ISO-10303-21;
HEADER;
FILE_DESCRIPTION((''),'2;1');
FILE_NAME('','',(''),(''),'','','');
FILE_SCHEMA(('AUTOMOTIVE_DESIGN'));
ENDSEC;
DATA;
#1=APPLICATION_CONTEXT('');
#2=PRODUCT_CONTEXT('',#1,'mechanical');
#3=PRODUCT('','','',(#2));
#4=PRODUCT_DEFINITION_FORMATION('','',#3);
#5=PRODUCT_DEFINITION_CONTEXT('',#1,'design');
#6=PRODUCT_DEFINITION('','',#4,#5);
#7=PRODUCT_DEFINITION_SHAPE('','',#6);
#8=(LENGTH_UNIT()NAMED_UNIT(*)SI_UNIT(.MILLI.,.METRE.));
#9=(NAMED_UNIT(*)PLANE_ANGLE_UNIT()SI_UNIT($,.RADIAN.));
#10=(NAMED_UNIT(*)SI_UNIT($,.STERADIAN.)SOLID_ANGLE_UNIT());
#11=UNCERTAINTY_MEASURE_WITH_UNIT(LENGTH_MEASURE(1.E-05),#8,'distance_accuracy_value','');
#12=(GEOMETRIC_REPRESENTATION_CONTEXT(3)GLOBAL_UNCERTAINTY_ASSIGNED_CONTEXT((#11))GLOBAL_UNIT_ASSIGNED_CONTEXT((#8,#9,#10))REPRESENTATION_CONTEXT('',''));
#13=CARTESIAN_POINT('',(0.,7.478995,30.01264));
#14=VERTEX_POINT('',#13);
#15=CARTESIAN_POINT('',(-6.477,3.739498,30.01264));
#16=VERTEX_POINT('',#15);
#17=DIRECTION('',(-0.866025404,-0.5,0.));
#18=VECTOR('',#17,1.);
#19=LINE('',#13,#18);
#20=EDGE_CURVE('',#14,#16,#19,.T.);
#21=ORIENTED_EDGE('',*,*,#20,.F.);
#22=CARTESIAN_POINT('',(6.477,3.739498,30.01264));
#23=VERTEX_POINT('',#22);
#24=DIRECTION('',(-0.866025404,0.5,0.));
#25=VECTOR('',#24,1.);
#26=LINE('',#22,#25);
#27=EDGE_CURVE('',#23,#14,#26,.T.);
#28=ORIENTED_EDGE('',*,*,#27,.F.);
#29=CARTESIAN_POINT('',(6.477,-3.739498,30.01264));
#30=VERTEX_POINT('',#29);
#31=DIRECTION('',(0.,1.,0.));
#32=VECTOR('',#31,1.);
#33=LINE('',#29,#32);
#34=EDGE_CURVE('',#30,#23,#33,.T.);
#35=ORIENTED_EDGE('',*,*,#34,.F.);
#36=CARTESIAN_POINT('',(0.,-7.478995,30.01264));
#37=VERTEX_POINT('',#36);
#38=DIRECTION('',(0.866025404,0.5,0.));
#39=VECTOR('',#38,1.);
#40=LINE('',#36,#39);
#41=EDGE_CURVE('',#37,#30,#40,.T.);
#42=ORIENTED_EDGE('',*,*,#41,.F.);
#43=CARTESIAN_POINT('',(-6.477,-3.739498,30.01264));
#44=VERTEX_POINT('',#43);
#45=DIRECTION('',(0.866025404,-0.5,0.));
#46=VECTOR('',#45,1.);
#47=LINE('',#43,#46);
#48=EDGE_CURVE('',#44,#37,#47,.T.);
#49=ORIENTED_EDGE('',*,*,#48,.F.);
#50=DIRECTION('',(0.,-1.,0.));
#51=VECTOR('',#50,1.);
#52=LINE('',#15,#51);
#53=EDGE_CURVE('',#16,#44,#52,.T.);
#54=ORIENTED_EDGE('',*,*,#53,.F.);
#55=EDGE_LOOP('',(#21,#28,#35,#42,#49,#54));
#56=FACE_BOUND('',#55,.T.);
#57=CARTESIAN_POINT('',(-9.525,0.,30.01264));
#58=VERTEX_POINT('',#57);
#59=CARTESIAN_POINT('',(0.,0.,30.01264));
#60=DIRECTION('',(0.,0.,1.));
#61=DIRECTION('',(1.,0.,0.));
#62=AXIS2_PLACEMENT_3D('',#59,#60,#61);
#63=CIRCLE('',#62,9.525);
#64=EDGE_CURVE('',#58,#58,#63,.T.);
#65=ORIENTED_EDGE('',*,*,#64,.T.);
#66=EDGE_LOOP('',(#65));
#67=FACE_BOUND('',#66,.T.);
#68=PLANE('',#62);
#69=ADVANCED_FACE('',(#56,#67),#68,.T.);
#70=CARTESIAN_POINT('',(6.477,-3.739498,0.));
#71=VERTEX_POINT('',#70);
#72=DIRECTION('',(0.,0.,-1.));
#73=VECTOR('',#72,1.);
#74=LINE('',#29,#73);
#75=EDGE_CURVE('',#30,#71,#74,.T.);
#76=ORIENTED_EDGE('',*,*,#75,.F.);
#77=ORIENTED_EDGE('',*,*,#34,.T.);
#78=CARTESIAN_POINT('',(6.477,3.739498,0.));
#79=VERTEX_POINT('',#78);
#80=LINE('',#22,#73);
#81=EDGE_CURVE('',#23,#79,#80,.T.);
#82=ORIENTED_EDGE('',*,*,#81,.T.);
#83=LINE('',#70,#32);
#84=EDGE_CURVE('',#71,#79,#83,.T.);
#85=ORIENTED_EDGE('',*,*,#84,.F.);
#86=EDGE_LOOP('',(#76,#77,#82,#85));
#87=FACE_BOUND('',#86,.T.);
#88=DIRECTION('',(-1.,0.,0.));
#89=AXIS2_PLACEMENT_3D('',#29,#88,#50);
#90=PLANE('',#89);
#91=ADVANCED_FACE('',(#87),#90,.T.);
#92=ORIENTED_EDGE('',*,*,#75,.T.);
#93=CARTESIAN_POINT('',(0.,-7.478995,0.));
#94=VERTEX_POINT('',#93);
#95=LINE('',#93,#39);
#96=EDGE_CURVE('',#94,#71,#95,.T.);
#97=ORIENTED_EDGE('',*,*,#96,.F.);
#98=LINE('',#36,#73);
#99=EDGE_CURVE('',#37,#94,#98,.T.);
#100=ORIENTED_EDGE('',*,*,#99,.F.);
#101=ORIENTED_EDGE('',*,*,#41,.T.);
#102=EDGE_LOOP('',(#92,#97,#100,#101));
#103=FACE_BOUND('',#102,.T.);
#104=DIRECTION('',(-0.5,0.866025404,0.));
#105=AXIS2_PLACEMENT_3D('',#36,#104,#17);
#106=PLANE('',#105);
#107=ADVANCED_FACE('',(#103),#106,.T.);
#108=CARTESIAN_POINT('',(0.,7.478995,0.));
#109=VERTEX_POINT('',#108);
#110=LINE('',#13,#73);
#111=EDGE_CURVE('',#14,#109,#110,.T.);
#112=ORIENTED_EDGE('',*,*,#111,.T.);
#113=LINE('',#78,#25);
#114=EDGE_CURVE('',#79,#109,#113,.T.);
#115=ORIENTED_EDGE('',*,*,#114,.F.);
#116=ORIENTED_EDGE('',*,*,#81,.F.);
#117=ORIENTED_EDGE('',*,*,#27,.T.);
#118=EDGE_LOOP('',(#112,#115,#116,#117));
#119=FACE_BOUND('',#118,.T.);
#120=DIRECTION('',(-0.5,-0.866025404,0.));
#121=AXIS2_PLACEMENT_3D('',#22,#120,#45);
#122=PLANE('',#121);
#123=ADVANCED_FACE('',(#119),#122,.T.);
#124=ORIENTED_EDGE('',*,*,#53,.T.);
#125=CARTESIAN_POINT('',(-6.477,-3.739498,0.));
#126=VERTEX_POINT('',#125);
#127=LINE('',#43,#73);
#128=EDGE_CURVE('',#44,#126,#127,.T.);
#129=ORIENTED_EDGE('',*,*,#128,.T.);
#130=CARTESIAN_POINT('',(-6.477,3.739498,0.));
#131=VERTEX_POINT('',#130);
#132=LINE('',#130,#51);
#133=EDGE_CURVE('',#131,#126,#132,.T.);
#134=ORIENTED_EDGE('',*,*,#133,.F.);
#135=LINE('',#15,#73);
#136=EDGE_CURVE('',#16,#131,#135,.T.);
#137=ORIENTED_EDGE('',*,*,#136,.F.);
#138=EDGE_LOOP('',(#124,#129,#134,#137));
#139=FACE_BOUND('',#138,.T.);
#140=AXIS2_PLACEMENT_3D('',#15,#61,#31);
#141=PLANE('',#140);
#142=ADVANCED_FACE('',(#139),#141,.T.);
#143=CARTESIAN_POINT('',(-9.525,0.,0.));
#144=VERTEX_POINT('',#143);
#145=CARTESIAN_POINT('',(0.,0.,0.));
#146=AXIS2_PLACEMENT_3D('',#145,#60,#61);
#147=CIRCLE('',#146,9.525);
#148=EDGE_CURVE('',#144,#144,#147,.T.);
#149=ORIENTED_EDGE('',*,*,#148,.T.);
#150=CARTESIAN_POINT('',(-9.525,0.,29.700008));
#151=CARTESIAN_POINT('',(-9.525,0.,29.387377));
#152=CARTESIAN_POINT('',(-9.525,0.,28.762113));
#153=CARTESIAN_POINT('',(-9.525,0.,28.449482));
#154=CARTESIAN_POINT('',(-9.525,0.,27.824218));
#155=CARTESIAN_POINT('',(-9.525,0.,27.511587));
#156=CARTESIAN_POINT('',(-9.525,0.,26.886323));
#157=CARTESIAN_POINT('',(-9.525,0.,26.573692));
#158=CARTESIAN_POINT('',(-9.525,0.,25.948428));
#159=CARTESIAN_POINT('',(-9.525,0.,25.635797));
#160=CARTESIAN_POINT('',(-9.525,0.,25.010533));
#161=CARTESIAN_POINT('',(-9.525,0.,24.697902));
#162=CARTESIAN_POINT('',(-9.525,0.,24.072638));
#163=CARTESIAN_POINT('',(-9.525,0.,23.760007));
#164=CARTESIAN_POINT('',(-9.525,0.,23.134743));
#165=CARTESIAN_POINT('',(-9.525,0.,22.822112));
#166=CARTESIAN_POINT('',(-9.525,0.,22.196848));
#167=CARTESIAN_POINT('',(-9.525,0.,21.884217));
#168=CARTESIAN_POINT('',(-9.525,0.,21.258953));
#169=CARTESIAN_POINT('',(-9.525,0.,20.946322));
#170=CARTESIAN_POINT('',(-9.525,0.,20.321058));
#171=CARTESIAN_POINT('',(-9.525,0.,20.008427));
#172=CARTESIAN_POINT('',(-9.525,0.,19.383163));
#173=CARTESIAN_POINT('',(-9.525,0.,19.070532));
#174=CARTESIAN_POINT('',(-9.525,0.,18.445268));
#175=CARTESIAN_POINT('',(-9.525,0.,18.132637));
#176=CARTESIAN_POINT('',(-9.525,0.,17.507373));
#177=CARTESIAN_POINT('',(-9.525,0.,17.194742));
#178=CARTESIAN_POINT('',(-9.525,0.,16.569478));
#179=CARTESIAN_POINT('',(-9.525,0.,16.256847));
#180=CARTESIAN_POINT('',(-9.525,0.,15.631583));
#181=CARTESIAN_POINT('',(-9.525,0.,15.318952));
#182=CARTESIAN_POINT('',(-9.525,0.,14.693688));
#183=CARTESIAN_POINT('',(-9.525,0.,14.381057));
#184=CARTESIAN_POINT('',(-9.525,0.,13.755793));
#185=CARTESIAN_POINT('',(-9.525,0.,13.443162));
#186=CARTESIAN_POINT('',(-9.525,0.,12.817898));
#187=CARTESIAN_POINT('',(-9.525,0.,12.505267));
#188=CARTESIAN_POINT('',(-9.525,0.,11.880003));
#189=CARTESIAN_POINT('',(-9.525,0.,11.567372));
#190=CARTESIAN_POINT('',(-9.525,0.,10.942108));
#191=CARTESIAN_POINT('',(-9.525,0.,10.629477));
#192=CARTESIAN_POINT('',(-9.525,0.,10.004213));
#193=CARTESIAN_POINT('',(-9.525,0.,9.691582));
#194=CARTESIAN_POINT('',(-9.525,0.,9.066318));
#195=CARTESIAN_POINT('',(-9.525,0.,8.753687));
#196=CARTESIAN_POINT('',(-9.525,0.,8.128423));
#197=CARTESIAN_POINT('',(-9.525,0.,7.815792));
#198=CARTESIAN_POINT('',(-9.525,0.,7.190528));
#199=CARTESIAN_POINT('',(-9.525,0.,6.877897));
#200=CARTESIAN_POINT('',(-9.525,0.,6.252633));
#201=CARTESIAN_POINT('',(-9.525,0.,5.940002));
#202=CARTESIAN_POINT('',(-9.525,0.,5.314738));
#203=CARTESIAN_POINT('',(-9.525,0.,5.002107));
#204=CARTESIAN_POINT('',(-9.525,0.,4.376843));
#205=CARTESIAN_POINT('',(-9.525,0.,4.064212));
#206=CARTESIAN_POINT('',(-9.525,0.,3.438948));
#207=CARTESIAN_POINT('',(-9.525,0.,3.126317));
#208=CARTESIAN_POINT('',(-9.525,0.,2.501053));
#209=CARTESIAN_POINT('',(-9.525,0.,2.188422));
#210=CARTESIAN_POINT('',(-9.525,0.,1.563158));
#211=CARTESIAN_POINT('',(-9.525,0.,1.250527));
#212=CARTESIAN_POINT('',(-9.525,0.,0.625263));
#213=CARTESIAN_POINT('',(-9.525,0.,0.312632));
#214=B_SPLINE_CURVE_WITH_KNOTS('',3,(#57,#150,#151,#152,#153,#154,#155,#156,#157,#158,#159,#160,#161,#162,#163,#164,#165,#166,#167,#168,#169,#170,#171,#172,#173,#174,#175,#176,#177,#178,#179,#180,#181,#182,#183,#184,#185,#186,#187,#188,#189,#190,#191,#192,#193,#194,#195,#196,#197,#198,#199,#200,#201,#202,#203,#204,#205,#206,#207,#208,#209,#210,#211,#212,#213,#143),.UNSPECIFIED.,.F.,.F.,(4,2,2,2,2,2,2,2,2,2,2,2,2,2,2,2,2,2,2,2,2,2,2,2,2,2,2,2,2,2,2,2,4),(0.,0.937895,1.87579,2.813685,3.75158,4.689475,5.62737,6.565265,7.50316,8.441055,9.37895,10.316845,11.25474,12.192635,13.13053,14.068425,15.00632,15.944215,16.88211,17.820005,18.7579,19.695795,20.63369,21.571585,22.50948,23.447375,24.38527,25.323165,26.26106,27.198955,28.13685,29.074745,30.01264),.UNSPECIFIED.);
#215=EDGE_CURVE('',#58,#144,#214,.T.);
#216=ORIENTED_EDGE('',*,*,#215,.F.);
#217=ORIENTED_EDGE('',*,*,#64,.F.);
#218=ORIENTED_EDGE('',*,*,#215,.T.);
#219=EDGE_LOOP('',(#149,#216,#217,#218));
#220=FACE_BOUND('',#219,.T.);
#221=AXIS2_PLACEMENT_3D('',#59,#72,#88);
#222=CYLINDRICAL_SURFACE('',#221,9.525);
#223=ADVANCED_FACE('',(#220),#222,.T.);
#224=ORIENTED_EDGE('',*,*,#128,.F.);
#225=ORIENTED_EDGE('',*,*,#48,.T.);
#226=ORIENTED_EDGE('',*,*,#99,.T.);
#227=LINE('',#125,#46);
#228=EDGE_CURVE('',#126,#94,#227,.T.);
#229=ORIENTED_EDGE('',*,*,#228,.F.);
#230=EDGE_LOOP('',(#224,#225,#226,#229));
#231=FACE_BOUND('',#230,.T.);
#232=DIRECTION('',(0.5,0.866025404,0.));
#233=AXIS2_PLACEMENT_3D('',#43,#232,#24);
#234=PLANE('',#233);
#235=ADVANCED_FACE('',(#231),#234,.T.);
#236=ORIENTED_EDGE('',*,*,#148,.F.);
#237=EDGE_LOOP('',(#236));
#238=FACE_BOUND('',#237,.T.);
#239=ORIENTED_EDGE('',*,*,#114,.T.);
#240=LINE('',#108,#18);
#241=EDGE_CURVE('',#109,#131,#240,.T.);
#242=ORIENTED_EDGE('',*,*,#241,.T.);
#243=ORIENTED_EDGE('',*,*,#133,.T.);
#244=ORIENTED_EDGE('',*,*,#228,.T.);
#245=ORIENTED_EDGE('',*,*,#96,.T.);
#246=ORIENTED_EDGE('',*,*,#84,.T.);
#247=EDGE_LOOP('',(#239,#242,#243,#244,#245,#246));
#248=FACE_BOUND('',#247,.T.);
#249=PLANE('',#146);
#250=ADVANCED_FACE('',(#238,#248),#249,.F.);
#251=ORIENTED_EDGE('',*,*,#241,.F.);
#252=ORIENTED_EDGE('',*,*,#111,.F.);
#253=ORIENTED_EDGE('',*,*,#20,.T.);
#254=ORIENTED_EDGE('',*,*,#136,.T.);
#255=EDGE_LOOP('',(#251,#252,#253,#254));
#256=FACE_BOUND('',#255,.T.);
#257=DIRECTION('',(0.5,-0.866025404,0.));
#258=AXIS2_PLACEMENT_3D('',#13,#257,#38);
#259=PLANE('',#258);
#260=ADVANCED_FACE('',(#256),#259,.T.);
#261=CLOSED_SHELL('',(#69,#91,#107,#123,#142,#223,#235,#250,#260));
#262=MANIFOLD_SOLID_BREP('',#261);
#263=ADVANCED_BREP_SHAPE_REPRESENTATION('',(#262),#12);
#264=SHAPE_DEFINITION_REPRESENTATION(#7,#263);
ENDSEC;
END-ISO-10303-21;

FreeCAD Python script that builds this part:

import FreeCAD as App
import Part
import Sketcher
Q = App.Units.Quantity


def add_polygon(sketch, points):
    """Adds a closed chain of lines whose ends are joined by coincident constraints."""
    first, n = sketch.GeometryCount, len(points)
    for a, b in zip(points, points[1:] + points[:1]):
        sketch.addGeometry(Part.LineSegment(App.Vector(*a, 0), App.Vector(*b, 0)), False)
    for i in range(n):
        sketch.addConstraint(Sketcher.Constraint("Coincident", first + i, 2, first + (i + 1) % n, 1))

doc = App.newDocument("Part")
params = doc.addObject("Spreadsheet::Sheet", "Params")
for row, (alias, value) in enumerate([
    ("sketch1_diameter", "0.75 in"),
    ("pad1_length", "1.1816 in"),
], start=1):
    params.set(f"A{row}", alias)
    params.set(f"B{row}", "=" + value)
    params.setAlias(f"B{row}", alias)

body = doc.addObject("PartDesign::Body", "Body")

# Sketch on XY plane
sketch1 = body.newObject("Sketcher::SketchObject", "Sketch")
sketch1.AttachmentSupport = (doc.getObject("XY_Plane"), [""])
sketch1.MapMode = "FlatFace"
sketch1.addGeometry(Part.Circle(App.Vector(0, 0, 0), App.Vector(0, 0, 1), 10), False)  # 0
add_polygon(sketch1, [(-6, 4), (0, 7), (6, 4), (6, -4), (0, -7), (-6, -4)])  # lines 1-6
sketch1.addConstraint([
    Sketcher.Constraint("Vertical", 3),
    Sketcher.Constraint("Vertical", 6),
    Sketcher.Constraint("Coincident", 0, 3, -1, 1),
    Sketcher.Constraint("Symmetric", 1, 2, 4, 2, -1, 1),
    Sketcher.Constraint("Symmetric", 2, 2, 5, 2, -1, 1),
    Sketcher.Constraint("PointOnObject", 1, 2, -2),
    Sketcher.Constraint("Parallel", 1, 4),
    Sketcher.Constraint("Horizontal", 3, 2, 5, 2),
    Sketcher.Constraint("Diameter", 0, Q("0.75 in")),
    Sketcher.Constraint("Angle", 1, Q("30 deg")),
    Sketcher.Constraint("DistanceX", 5, 2, 3, 2, Q("0.51 in")),
    Sketcher.Constraint("DistanceY", 3, 2, 3, 1, 7.478995),
])
sketch1.setExpression("Constraints[14]", "Params.sketch1_diameter")
pad1 = body.newObject("PartDesign::Pad", "Pad")
pad1.Profile = sketch1
pad1.setExpression("Length", "Params.pad1_length")

doc.recompute()
